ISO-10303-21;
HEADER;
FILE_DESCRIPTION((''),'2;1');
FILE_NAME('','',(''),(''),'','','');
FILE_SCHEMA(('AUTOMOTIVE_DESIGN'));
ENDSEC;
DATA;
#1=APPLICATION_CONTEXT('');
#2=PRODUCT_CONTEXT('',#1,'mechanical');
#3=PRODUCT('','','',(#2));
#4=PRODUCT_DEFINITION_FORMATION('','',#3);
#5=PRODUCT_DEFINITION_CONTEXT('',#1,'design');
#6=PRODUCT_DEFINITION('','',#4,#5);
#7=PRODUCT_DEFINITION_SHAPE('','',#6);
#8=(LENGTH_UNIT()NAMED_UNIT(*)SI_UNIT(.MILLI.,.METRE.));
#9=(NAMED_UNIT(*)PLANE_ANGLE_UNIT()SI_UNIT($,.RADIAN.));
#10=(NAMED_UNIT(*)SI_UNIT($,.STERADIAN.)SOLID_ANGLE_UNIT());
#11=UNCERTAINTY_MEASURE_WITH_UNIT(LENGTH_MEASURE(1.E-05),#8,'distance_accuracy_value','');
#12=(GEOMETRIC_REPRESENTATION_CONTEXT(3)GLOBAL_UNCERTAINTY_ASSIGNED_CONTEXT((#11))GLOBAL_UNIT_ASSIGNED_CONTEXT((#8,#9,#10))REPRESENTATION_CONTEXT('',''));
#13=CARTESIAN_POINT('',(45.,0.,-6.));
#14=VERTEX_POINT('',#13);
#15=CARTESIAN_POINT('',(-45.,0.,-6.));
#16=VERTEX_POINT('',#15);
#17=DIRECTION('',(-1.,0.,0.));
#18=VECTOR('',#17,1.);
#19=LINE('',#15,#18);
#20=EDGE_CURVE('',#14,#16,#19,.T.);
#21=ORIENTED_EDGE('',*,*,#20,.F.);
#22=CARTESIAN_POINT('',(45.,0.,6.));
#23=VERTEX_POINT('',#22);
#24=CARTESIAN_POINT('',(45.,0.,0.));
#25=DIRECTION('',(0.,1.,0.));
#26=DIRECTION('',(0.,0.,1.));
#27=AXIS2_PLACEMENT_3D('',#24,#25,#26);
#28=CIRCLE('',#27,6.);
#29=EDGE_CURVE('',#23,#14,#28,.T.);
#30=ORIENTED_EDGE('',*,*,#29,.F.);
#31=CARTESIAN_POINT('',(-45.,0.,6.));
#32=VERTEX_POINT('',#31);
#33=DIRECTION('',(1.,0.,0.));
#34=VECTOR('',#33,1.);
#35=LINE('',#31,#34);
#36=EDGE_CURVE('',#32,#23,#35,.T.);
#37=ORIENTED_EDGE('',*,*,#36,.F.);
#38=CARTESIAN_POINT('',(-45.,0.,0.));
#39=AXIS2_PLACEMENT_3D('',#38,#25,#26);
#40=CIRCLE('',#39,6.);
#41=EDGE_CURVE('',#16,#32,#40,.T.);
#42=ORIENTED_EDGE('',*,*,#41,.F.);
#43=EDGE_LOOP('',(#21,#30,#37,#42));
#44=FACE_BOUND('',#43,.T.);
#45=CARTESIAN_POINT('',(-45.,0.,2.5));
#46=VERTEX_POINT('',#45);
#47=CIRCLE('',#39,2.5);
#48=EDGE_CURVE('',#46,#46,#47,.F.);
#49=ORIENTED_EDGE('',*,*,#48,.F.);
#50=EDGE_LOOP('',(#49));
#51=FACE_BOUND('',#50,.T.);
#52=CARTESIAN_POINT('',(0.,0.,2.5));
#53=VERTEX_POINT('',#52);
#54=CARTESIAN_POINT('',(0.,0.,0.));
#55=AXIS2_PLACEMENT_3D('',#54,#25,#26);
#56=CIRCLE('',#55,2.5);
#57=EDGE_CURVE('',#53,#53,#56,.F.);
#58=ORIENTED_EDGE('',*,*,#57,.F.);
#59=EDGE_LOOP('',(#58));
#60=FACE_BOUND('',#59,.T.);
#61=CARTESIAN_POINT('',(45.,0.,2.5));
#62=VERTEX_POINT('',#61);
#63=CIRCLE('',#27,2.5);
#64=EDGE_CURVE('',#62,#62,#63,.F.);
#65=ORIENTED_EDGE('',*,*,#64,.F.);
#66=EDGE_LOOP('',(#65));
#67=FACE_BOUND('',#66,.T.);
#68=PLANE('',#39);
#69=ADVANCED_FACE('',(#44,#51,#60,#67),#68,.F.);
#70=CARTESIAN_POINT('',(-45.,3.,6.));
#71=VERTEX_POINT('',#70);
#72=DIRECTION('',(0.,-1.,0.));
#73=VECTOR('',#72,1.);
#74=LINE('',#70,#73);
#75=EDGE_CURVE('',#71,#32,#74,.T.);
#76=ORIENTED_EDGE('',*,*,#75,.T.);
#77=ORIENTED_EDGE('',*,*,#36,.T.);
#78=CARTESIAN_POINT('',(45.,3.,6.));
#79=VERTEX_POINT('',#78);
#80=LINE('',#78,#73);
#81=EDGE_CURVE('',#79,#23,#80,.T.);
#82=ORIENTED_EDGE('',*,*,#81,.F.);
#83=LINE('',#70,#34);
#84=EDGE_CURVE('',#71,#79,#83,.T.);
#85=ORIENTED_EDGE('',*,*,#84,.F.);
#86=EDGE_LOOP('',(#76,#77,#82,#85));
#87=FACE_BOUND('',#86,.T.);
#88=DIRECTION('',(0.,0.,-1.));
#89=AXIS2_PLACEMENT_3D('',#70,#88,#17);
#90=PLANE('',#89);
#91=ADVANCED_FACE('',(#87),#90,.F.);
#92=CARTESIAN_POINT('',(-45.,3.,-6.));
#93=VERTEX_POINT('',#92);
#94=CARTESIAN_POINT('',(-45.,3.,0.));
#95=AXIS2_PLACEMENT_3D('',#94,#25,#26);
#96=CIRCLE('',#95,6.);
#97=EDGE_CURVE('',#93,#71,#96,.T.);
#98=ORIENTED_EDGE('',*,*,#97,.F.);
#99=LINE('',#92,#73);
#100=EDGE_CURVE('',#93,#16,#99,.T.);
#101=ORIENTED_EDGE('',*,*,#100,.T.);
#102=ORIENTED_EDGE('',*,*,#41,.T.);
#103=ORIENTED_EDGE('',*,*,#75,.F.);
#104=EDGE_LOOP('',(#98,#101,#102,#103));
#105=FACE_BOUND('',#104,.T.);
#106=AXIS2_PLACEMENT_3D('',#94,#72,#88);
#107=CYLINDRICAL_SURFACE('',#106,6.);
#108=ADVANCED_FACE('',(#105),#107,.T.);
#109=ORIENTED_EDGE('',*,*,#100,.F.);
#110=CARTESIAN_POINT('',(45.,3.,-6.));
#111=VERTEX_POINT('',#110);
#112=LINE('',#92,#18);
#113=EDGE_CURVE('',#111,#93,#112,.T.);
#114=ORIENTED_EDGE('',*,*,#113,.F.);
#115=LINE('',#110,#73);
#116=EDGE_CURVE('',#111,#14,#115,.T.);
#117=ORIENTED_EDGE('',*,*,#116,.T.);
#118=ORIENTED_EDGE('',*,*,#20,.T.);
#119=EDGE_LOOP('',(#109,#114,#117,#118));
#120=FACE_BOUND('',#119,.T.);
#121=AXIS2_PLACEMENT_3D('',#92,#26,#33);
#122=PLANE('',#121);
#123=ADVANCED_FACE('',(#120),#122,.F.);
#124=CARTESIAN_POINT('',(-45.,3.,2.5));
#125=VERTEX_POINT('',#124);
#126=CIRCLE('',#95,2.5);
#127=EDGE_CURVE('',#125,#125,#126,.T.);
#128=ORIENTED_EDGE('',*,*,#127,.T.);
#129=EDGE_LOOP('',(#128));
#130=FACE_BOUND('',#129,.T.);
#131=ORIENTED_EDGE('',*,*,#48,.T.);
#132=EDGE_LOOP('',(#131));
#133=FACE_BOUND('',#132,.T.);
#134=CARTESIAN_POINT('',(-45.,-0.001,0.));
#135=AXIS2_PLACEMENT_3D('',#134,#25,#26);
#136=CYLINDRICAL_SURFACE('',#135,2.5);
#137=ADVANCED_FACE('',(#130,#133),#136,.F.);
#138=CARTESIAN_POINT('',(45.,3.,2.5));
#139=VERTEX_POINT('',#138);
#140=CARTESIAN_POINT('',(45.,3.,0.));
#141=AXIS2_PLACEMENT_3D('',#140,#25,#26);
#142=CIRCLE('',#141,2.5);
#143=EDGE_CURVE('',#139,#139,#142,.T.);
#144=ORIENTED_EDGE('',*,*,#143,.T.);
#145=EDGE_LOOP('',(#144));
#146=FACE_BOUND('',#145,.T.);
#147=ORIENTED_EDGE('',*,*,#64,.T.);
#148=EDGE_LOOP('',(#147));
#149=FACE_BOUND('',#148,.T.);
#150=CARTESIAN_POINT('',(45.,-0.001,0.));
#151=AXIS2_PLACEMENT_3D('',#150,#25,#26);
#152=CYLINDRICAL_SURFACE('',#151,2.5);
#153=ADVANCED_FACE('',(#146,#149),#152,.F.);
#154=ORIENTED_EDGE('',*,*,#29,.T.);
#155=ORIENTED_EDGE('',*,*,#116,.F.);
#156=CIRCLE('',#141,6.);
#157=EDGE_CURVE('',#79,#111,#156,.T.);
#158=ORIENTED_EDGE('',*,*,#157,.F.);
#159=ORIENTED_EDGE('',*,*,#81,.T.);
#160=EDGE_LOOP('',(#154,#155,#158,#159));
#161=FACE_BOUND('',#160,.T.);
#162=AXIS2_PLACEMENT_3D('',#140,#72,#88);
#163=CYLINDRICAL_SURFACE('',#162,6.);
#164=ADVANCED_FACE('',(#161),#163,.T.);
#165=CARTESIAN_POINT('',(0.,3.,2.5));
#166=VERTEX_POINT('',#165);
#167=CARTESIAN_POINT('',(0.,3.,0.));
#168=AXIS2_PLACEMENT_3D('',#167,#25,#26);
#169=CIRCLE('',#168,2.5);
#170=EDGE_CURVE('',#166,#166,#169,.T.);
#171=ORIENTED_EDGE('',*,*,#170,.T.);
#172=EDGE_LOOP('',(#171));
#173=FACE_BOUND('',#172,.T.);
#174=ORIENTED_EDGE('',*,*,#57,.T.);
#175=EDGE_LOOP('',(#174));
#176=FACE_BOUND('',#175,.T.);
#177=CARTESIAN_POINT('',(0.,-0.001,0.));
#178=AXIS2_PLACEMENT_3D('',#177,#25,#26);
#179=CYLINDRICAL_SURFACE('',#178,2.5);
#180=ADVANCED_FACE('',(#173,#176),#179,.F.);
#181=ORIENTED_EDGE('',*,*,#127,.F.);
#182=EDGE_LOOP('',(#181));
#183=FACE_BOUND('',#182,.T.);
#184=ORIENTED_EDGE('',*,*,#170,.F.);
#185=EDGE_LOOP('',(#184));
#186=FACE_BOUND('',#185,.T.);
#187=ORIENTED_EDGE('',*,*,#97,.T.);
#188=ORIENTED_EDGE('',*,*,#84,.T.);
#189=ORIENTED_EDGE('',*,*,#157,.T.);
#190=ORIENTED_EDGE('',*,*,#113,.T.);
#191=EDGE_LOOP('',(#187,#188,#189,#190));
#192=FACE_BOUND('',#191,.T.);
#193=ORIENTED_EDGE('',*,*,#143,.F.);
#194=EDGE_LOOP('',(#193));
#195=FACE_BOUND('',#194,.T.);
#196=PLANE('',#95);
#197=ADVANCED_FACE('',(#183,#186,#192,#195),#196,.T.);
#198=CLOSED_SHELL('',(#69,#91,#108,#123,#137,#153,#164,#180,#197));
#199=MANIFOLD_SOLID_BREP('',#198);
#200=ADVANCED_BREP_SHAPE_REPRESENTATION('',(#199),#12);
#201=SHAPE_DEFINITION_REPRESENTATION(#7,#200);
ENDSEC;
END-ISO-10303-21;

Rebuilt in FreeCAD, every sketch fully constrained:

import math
import FreeCAD as App
import Part
import Sketcher
from FreeCAD import Vector
Q = App.Units.Quantity

doc = App.newDocument("Part")
params = doc.addObject("Spreadsheet::Sheet", "Params")
for row, (alias, value) in enumerate([
    ("sketch1_radius", "6 mm"),
    ("sketch1_width", "90 mm"),
    ("pad1_length", "3 mm"),
    ("sketch2_diameter", "5 mm"),
    ("sketch3_diameter", "5 mm"),
    ("sketch4_diameter", "5 mm"),
], start=1):
    params.set(f"A{row}", alias)
    params.set(f"B{row}", "=" + value)
    params.setAlias(f"B{row}", alias)

body = doc.addObject("PartDesign::Body", "Body")

sketch1 = body.newObject("Sketcher::SketchObject", "Sketch")
sketch1.AttachmentSupport = (doc.getObject("XZ_Plane"), [""])
sketch1.MapMode = "FlatFace"
sketch1.addGeometry(Part.LineSegment(Vector(45, -6, 0), Vector(-45, -6, 0)), False)
sketch1.addGeometry(Part.ArcOfCircle(Part.Circle(Vector(-45, 0, 0), Vector(0, 0, 1), 6), math.radians(90), math.radians(270)), False)
sketch1.addGeometry(Part.LineSegment(Vector(-45, 6, 0), Vector(45, 6, 0)), False)
sketch1.addGeometry(Part.ArcOfCircle(Part.Circle(Vector(45, 0, 0), Vector(0, 0, 1), 6), math.radians(-90), math.radians(90)), False)
sketch1.addConstraint(Sketcher.Constraint("Tangent", 0, 2, 1, 2))
sketch1.addConstraint(Sketcher.Constraint("Tangent", 1, 1, 2, 1))
sketch1.addConstraint(Sketcher.Constraint("Tangent", 2, 2, 3, 2))
sketch1.addConstraint(Sketcher.Constraint("Tangent", 3, 1, 0, 1))
sketch1.addConstraint(Sketcher.Constraint("Horizontal", 0))
sketch1.addConstraint(Sketcher.Constraint("Horizontal", 2))
sketch1.addConstraint(Sketcher.Constraint("Symmetric", 1, 3, 3, 3, -1, 1))
sketch1.addConstraint(Sketcher.Constraint("Radius", 1, Q("6 mm")))
sketch1.addConstraint(Sketcher.Constraint("DistanceX", 0, 2, 0, 1, Q("90 mm")))
sketch1.setExpression("Constraints[7]", "Params.sketch1_radius")
sketch1.setExpression("Constraints[8]", "Params.sketch1_width")
pad1 = body.newObject("PartDesign::Pad", "Pad")
pad1.Profile = sketch1
pad1.setExpression("Length", "Params.pad1_length")
pad1.Reversed = True

sketch2 = body.newObject("Sketcher::SketchObject", "Sketch001")
sketch2.AttachmentSupport = (doc.getObject("XZ_Plane"), [""])
sketch2.MapMode = "FlatFace"
sketch2.AttachmentOffset = App.Placement(Vector(0, 0, -3), App.Rotation())
sketch2.addGeometry(Part.Circle(Vector(-45, 0, 0), Vector(0, 0, 1), 2.5), False)
sketch2.addConstraint(Sketcher.Constraint("PointOnObject", 0, 3, -1))
sketch2.addConstraint(Sketcher.Constraint("Diameter", 0, Q("5 mm")))
sketch2.addConstraint(Sketcher.Constraint("DistanceX", 0, 3, -1, 1, Q("45 mm")))
sketch2.setExpression("Constraints[1]", "Params.sketch2_diameter")
pocket1 = body.newObject("PartDesign::Pocket", "Pocket")
pocket1.Profile = sketch2
pocket1.Type = "UpToFirst"
pocket1.Reversed = True

sketch3 = body.newObject("Sketcher::SketchObject", "Sketch002")
sketch3.AttachmentSupport = (doc.getObject("XZ_Plane"), [""])
sketch3.MapMode = "FlatFace"
sketch3.AttachmentOffset = App.Placement(Vector(0, 0, -3), App.Rotation())
sketch3.addGeometry(Part.Circle(Vector(45, 0, 0), Vector(0, 0, 1), 2.5), False)
sketch3.addConstraint(Sketcher.Constraint("PointOnObject", 0, 3, -1))
sketch3.addConstraint(Sketcher.Constraint("Diameter", 0, Q("5 mm")))
sketch3.addConstraint(Sketcher.Constraint("DistanceX", -1, 1, 0, 3, Q("45 mm")))
sketch3.setExpression("Constraints[1]", "Params.sketch3_diameter")
pocket2 = body.newObject("PartDesign::Pocket", "Pocket001")
pocket2.Profile = sketch3
pocket2.Type = "UpToFirst"
pocket2.Reversed = True

sketch4 = body.newObject("Sketcher::SketchObject", "Sketch003")
sketch4.AttachmentSupport = (doc.getObject("XZ_Plane"), [""])
sketch4.MapMode = "FlatFace"
sketch4.AttachmentOffset = App.Placement(Vector(0, 0, -3), App.Rotation())
sketch4.addGeometry(Part.Circle(Vector(0, 0, 0), Vector(0, 0, 1), 2.5), False)
sketch4.addConstraint(Sketcher.Constraint("Coincident", 0, 3, -1, 1))
sketch4.addConstraint(Sketcher.Constraint("Diameter", 0, Q("5 mm")))
sketch4.setExpression("Constraints[1]", "Params.sketch4_diameter")
pocket3 = body.newObject("PartDesign::Pocket", "Pocket002")
pocket3.Profile = sketch4
pocket3.Type = "UpToFirst"
pocket3.Reversed = True

doc.recompute()
